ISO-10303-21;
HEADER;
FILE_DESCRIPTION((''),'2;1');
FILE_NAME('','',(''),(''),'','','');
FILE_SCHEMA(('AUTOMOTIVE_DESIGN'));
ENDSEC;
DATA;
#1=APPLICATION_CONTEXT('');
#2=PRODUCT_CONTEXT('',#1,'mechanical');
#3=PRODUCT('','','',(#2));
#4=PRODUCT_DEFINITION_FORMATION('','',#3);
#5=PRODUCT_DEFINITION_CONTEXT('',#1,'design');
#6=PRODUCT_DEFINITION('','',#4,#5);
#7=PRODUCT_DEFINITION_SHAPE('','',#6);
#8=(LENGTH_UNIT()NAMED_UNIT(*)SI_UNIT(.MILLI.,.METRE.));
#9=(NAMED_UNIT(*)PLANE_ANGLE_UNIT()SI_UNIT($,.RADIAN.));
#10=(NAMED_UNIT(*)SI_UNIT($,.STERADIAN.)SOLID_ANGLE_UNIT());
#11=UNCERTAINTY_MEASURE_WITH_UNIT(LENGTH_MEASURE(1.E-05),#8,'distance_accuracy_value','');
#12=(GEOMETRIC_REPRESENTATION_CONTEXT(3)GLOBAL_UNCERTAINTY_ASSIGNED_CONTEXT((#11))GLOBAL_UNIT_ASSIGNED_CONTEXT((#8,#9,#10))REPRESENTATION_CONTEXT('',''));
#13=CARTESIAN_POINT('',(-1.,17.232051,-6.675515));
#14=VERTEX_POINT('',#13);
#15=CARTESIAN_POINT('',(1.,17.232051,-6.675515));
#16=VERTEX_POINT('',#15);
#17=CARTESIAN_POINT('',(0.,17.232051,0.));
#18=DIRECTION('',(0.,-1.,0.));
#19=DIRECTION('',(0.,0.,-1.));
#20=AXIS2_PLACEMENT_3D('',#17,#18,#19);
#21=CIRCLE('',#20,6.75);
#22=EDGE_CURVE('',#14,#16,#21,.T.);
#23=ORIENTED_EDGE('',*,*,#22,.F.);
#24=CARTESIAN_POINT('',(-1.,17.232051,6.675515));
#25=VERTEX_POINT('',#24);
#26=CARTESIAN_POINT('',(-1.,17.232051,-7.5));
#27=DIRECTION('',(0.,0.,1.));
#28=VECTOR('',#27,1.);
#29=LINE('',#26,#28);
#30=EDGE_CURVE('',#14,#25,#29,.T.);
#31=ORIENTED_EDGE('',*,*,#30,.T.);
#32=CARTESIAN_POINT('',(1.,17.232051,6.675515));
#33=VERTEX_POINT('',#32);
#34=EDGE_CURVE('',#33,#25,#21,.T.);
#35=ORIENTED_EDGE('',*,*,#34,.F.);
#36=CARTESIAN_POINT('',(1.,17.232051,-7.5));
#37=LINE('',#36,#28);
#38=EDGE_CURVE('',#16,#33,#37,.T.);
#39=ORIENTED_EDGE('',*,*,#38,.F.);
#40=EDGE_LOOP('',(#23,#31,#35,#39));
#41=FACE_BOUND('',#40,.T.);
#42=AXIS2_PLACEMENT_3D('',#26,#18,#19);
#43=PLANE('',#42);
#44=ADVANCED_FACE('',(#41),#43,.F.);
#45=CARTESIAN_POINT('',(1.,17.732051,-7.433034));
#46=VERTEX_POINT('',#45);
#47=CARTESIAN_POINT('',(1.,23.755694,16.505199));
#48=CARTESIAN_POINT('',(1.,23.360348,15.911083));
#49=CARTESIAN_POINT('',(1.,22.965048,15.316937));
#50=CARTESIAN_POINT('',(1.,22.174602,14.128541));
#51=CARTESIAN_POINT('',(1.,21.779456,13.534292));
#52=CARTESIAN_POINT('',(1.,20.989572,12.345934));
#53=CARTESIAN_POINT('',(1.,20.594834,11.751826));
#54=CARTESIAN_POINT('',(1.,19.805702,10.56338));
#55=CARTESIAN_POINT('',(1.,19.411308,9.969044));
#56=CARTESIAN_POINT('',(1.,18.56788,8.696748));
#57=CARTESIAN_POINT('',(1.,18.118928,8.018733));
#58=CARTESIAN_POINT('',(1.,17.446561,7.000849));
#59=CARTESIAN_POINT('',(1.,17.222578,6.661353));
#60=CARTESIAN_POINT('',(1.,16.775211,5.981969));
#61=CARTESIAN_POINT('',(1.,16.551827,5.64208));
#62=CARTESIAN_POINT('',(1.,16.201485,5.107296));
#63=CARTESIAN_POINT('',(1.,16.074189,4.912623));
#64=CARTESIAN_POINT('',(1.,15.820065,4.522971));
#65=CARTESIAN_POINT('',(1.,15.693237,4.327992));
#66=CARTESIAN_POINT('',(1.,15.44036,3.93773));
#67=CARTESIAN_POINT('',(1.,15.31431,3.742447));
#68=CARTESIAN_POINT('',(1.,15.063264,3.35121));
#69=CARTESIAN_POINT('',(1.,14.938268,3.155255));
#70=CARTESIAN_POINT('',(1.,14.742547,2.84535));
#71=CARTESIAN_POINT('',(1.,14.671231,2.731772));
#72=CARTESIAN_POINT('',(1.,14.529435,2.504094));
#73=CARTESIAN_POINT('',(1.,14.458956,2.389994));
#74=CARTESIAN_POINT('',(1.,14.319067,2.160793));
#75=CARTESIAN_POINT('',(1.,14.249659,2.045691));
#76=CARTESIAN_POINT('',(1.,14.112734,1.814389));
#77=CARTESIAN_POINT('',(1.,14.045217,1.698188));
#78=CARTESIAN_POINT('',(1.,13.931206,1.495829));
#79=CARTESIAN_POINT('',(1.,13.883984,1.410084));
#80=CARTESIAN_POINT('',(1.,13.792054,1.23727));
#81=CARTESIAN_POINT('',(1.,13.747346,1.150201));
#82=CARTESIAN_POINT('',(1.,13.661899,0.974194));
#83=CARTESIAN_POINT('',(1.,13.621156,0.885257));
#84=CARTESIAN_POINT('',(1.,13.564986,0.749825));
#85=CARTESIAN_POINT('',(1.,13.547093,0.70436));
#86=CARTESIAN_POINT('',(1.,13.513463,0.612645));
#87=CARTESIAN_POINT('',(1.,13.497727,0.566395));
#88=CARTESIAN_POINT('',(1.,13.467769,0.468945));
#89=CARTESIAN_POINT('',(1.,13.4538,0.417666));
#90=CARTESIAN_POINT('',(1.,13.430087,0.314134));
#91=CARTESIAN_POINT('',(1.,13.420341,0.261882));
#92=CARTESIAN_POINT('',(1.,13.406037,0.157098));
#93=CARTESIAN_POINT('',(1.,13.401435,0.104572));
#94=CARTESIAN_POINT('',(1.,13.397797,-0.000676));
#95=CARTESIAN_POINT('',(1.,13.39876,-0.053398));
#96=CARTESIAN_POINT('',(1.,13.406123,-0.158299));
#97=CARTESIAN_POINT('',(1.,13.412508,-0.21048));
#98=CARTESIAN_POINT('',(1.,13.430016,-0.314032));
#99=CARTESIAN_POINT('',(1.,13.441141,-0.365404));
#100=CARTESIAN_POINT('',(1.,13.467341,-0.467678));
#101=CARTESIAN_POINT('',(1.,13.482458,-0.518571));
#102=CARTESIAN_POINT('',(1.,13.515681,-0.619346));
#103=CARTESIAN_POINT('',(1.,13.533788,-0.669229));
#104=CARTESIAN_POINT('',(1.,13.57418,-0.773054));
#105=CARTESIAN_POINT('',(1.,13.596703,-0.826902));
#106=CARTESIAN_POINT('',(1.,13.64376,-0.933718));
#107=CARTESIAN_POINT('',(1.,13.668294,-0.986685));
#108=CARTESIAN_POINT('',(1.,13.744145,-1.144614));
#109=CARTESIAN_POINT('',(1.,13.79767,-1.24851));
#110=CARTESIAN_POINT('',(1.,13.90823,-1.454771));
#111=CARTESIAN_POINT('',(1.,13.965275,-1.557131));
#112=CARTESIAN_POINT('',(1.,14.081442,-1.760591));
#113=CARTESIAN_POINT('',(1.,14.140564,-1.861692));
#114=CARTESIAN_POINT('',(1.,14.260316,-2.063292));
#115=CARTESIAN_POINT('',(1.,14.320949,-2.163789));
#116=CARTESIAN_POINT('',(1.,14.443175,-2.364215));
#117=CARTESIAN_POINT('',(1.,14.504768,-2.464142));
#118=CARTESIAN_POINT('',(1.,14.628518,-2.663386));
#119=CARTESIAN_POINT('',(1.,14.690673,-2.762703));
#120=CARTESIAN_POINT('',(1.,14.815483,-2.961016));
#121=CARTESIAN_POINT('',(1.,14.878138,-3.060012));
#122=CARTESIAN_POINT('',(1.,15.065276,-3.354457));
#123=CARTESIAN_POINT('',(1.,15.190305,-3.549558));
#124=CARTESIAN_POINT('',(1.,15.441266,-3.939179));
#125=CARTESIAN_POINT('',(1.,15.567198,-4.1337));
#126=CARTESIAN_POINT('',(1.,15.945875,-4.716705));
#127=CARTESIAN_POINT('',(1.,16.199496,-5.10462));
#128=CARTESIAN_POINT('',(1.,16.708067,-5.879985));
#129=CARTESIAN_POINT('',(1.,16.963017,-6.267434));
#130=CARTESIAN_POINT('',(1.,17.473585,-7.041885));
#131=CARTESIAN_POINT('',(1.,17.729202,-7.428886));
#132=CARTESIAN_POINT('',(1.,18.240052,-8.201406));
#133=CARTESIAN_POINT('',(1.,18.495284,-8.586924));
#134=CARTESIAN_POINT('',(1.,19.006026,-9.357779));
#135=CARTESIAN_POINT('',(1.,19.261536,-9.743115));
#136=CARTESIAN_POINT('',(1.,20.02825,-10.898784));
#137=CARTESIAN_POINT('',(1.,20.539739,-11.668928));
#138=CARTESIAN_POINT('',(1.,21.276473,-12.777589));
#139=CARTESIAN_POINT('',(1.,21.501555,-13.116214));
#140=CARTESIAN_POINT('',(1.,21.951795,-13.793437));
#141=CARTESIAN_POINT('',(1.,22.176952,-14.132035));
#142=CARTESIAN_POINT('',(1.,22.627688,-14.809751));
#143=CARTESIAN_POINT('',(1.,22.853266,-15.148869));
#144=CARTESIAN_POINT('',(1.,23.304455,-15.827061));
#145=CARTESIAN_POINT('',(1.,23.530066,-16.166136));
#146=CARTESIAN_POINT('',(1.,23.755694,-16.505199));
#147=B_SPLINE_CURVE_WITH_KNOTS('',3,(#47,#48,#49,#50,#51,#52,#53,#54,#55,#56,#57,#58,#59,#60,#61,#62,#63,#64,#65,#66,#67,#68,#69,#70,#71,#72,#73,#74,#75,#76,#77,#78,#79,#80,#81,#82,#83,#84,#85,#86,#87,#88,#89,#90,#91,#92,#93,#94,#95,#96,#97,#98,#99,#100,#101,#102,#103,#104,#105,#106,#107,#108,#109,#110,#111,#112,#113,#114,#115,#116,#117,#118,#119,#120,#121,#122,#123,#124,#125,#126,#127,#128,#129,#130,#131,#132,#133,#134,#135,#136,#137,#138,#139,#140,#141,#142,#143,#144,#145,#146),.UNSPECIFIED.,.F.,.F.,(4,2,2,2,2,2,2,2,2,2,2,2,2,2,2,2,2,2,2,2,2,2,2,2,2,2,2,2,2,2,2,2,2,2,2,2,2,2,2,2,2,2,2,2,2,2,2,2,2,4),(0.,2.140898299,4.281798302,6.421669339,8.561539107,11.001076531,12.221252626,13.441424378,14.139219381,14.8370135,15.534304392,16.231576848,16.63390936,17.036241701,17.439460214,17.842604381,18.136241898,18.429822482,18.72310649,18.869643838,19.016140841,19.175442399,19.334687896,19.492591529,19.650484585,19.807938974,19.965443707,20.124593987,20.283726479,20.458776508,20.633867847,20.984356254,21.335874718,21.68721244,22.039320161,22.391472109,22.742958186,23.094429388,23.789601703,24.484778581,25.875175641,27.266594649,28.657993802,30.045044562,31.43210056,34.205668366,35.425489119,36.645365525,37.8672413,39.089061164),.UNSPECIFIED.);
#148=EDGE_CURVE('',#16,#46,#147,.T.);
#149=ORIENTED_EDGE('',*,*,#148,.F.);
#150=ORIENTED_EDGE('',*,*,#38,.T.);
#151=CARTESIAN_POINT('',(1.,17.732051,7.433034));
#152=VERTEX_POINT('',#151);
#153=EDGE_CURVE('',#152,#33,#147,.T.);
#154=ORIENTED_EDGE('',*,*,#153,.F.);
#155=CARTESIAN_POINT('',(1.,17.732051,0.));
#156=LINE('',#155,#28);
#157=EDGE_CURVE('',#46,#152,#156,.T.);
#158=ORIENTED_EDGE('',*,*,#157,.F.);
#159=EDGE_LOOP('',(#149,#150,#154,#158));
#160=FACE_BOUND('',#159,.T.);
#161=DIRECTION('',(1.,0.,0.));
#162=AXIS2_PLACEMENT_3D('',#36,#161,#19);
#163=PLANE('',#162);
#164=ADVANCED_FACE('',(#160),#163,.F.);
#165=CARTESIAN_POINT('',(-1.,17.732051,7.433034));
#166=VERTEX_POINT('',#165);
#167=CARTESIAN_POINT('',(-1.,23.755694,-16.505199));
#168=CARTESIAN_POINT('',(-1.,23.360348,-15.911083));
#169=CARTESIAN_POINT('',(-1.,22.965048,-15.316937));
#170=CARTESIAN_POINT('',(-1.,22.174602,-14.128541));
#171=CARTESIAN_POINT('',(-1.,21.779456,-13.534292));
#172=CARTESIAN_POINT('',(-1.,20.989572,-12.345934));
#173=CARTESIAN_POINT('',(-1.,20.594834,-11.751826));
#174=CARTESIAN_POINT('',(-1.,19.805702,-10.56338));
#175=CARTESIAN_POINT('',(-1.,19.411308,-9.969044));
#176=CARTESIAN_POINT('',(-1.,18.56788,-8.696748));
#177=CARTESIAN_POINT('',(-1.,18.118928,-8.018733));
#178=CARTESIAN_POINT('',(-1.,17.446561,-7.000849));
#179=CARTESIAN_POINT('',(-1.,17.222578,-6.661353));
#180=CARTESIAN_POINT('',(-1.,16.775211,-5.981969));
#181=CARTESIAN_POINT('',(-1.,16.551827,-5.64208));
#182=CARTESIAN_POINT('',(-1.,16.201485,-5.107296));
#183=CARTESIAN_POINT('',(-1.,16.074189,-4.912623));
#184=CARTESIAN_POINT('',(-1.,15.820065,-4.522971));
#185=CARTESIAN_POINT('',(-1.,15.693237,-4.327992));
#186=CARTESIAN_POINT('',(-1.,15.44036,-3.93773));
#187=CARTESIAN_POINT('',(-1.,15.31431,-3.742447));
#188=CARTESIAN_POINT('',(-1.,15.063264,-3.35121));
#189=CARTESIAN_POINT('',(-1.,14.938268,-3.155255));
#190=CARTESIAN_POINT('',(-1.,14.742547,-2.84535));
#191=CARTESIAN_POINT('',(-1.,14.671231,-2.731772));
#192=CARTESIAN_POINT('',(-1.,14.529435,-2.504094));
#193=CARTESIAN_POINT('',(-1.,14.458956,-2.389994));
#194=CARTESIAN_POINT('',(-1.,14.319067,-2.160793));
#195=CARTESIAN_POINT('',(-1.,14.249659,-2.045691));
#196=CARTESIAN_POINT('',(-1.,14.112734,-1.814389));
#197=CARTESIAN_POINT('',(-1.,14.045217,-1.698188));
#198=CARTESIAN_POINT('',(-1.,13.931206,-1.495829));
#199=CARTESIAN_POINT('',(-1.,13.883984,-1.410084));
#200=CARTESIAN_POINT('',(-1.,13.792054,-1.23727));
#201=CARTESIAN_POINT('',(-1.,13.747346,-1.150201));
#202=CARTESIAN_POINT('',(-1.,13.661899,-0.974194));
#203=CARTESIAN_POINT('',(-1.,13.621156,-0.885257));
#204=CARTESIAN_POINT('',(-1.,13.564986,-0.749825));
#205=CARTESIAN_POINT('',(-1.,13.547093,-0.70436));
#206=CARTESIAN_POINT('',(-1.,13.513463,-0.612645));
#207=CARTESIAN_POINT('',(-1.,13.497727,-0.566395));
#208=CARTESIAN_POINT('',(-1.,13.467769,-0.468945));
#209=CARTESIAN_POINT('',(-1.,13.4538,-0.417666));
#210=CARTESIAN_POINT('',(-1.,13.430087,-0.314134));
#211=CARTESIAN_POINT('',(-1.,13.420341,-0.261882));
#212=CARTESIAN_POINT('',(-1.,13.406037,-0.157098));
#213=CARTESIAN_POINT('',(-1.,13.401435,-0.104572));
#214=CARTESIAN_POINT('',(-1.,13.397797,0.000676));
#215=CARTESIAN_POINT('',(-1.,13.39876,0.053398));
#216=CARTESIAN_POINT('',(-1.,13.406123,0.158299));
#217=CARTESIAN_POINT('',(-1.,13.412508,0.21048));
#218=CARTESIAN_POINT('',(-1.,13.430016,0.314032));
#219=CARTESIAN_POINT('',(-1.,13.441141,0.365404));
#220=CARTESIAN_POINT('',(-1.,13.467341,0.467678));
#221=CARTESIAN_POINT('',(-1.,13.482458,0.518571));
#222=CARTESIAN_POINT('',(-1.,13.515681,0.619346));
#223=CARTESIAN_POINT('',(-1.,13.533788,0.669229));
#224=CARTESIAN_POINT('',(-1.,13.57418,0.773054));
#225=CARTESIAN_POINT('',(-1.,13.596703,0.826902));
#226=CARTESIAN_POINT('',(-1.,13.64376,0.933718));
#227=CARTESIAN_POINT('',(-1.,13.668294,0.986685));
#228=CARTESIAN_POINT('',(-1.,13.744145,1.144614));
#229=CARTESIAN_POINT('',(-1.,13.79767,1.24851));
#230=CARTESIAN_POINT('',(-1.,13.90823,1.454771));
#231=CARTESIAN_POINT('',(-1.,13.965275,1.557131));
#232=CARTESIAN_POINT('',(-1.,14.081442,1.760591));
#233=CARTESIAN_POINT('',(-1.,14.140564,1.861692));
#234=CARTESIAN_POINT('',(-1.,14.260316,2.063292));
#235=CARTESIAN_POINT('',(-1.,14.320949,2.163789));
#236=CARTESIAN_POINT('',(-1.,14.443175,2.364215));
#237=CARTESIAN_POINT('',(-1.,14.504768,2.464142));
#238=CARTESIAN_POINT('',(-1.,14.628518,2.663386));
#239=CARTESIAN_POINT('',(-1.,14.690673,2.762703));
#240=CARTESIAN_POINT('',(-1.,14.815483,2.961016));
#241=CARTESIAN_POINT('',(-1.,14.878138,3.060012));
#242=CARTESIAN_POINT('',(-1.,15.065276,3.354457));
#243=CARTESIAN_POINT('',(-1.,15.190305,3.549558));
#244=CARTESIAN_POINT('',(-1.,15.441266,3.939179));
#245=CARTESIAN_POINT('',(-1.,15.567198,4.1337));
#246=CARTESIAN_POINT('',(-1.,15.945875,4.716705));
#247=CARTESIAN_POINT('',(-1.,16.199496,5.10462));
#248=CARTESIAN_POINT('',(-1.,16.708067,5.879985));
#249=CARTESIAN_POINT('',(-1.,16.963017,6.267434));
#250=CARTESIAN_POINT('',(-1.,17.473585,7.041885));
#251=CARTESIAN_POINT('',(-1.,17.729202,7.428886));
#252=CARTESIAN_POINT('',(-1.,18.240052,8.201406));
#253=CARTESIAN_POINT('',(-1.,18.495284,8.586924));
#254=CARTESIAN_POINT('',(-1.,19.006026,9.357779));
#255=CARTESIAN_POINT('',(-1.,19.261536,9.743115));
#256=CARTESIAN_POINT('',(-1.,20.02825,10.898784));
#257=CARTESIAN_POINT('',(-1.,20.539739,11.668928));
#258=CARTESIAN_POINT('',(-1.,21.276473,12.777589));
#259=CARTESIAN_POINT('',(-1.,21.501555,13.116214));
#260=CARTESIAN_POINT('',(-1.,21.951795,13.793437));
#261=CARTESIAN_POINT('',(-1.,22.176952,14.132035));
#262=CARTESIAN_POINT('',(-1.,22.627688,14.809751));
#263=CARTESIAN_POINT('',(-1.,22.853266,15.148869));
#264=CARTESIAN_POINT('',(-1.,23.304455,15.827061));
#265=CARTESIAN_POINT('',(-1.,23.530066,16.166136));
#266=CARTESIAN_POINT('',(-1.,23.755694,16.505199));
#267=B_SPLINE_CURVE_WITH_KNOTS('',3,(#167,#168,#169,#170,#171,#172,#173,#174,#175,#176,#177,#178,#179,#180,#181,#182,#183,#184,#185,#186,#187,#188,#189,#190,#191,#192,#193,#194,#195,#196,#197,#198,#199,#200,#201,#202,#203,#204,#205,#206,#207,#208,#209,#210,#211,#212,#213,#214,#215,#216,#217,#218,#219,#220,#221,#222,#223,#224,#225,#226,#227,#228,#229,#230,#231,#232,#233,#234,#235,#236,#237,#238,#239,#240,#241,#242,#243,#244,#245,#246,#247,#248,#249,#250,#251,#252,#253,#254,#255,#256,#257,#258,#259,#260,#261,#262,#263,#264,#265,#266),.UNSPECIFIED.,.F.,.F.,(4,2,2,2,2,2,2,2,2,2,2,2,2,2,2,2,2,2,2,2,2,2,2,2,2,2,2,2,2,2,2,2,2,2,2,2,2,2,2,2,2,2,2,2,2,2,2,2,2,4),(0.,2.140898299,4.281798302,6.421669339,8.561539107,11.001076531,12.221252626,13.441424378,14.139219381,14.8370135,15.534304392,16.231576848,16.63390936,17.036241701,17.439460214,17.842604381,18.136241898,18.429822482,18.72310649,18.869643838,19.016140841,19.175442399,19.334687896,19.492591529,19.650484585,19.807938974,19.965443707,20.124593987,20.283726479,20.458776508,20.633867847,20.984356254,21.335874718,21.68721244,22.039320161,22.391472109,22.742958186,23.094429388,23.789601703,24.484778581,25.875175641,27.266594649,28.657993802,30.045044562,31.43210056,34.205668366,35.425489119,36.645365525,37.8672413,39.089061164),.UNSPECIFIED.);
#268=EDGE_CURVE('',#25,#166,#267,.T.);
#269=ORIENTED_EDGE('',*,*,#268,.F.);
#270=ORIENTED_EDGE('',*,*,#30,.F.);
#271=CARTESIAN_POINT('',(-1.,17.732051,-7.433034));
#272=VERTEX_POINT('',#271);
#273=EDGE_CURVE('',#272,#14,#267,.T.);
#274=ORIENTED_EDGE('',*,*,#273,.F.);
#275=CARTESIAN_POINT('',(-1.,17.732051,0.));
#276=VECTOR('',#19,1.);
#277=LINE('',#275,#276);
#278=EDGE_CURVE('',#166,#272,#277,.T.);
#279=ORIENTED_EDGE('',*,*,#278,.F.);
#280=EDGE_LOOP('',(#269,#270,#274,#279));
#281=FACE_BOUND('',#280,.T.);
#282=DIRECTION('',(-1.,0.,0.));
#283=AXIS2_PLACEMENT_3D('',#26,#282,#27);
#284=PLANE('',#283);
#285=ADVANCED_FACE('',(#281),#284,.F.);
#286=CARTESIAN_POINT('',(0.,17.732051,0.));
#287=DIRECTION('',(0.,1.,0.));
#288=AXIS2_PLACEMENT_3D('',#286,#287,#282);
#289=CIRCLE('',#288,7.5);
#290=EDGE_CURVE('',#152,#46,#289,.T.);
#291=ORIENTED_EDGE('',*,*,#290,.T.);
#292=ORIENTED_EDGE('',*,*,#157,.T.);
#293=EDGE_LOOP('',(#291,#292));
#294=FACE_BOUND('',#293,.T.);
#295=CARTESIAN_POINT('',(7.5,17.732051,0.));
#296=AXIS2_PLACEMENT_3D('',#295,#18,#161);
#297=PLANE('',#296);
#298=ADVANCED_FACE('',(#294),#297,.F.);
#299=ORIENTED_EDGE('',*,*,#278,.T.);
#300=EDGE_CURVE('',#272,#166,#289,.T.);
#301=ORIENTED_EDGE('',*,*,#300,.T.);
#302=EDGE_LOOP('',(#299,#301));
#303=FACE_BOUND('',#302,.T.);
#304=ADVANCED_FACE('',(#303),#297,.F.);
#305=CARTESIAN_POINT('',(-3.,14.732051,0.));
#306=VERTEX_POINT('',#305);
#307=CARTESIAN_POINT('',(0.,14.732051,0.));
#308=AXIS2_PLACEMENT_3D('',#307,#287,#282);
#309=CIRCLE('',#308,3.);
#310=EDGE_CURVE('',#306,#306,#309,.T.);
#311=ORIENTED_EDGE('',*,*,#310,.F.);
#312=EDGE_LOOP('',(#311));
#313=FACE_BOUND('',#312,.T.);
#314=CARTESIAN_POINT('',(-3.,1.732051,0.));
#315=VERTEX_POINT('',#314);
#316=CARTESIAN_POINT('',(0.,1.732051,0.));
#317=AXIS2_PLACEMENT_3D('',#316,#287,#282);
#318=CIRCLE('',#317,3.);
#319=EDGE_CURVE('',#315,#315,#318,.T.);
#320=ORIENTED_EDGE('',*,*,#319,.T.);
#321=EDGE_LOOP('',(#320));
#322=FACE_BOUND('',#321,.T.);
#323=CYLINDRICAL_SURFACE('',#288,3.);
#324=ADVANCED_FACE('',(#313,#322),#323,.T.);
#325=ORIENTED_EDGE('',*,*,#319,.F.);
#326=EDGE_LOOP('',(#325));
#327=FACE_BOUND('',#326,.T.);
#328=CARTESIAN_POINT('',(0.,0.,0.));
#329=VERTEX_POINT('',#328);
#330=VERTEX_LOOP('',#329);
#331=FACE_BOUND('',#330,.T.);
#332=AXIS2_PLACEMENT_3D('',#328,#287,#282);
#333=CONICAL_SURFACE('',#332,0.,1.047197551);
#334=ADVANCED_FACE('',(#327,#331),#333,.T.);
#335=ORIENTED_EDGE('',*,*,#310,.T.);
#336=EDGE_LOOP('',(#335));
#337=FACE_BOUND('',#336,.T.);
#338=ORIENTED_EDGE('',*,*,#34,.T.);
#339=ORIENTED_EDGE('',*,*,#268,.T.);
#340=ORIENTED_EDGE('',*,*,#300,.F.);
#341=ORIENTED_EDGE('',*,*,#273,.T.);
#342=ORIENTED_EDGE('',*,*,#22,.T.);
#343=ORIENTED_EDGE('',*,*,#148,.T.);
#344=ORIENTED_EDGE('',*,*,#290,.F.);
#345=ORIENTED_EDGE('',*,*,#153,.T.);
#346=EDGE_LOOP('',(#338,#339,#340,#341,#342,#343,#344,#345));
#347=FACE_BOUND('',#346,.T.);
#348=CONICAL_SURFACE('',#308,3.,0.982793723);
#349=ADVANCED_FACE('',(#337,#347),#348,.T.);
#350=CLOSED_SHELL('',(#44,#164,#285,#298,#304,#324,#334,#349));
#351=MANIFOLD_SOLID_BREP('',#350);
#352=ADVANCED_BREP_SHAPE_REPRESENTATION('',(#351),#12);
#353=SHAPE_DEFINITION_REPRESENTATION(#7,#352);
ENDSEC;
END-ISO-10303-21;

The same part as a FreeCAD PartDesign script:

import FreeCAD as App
import Part
import Sketcher

V = App.Vector
Q = App.Units.Quantity

doc = App.newDocument("Part")
params = doc.addObject("Spreadsheet::Sheet", "Params")
for row, (alias, value) in enumerate([
    ("sketch1_height", "13 mm"),
    ("sketch1_width", "7.5 mm"),
    ("revolution_angle", "360 deg"),
    ("sketch2_width", "2 mm"),
    ("sketch2_height", "1 mm"),
], start=1):
    params.set(f"A{row}", alias)
    params.set(f"B{row}", "=" + value)
    params.setAlias(f"B{row}", alias)

body = doc.addObject("PartDesign::Body", "Body")

sketch1 = body.newObject("Sketcher::SketchObject", "Sketch")
sketch1.AttachmentSupport = (doc.getObject("XY_Plane"), [""])
sketch1.MapMode = "FlatFace"
sketch1.addGeometry(Part.LineSegment(V(0, 0, 0), V(3, 1.7, 0)), False)
sketch1.addGeometry(Part.LineSegment(V(3, 1.7, 0), V(3, 14.7, 0)), False)
sketch1.addGeometry(Part.LineSegment(V(3, 14.7, 0), V(7.5, 17.7, 0)), False)
sketch1.addGeometry(Part.LineSegment(V(7.5, 17.7, 0), V(0, 17.7, 0)), False)
sketch1.addGeometry(Part.LineSegment(V(0, 17.7, 0), V(0, 0, 0)), False)
sketch1.addConstraint(Sketcher.Constraint("Coincident", 0, 2, 1, 1))
sketch1.addConstraint(Sketcher.Constraint("Coincident", 1, 2, 2, 1))
sketch1.addConstraint(Sketcher.Constraint("Coincident", 2, 2, 3, 1))
sketch1.addConstraint(Sketcher.Constraint("Coincident", 3, 2, 4, 1))
sketch1.addConstraint(Sketcher.Constraint("Coincident", 4, 2, 0, 1))
sketch1.addConstraint(Sketcher.Constraint("Vertical", 1))
sketch1.addConstraint(Sketcher.Constraint("Horizontal", 3))
sketch1.addConstraint(Sketcher.Constraint("Vertical", 4))
sketch1.addConstraint(Sketcher.Constraint("Coincident", 4, 2, -1, 1))
sketch1.addConstraint(Sketcher.Constraint("DistanceY", 1, 1, 1, 2, 13.0))
sketch1.addConstraint(Sketcher.Constraint("Angle", 0, Q("30 deg")))
sketch1.addConstraint(Sketcher.Constraint("DistanceX", 3, 2, 3, 1, 7.5))
sketch1.addConstraint(Sketcher.Constraint("DistanceX", -1, 1, 0, 2, 3.0))
sketch1.addConstraint(Sketcher.Constraint("DistanceY", 1, 2, 2, 2, 3.0))
sketch1.setExpression("Constraints[9]", "Params.sketch1_height")
sketch1.setExpression("Constraints[11]", "Params.sketch1_width")
revolution = body.newObject("PartDesign::Revolution", "Revolution")
revolution.Profile = sketch1
revolution.ReferenceAxis = (sketch1, ["V_Axis"])
revolution.setExpression("Angle", "Params.revolution_angle")

sketch2 = body.newObject("Sketcher::SketchObject", "Sketch001")
sketch2.AttachmentSupport = (doc.getObject("XY_Plane"), [""])
sketch2.MapMode = "FlatFace"
sketch2.addGeometry(Part.LineSegment(V(-1, 18.2, 0), V(-1, 17.2, 0)), False)
sketch2.addGeometry(Part.LineSegment(V(-1, 17.2, 0), V(1, 17.2, 0)), False)
sketch2.addGeometry(Part.LineSegment(V(1, 17.2, 0), V(1, 18.2, 0)), False)
sketch2.addGeometry(Part.LineSegment(V(1, 18.2, 0), V(-1, 18.2, 0)), False)
sketch2.addConstraint(Sketcher.Constraint("Coincident", 0, 2, 1, 1))
sketch2.addConstraint(Sketcher.Constraint("Coincident", 1, 2, 2, 1))
sketch2.addConstraint(Sketcher.Constraint("Coincident", 2, 2, 3, 1))
sketch2.addConstraint(Sketcher.Constraint("Coincident", 3, 2, 0, 1))
sketch2.addConstraint(Sketcher.Constraint("Vertical", 0))
sketch2.addConstraint(Sketcher.Constraint("Horizontal", 1))
sketch2.addConstraint(Sketcher.Constraint("Vertical", 2))
sketch2.addConstraint(Sketcher.Constraint("Horizontal", 3))
sketch2.addConstraint(Sketcher.Constraint("DistanceX", 1, 1, 1, 2, 2.0))
sketch2.addConstraint(Sketcher.Constraint("DistanceY", 0, 2, 0, 1, 1.0))
sketch2.addConstraint(Sketcher.Constraint("DistanceX", 0, 2, -1, 1, 1.0))
sketch2.addConstraint(Sketcher.Constraint("DistanceY", -1, 1, 0, 2, 17.232051))
sketch2.setExpression("Constraints[8]", "Params.sketch2_width")
sketch2.setExpression("Constraints[9]", "Params.sketch2_height")
pocket1 = body.newObject("PartDesign::Pocket", "Pocket")
pocket1.Profile = sketch2
pocket1.Type = "ThroughAll"
pocket1.Midplane = True

doc.recompute()
